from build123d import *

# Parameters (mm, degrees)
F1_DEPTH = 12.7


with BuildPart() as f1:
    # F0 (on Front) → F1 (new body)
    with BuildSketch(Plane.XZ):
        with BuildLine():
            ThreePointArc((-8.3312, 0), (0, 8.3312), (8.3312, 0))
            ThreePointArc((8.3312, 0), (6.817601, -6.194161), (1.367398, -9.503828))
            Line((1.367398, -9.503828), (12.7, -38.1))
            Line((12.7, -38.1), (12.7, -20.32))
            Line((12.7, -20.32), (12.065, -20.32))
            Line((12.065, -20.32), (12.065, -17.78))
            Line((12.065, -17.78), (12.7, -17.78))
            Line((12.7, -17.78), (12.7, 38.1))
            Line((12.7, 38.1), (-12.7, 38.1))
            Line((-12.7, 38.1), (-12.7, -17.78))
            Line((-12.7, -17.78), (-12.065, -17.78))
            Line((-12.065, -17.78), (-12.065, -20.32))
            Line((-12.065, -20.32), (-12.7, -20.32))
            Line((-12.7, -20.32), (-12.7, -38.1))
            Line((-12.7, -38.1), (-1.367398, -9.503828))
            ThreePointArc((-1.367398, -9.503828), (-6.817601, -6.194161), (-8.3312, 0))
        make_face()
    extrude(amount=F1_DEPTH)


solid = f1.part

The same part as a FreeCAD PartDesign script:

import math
import FreeCAD as App
import Part
import Sketcher
from FreeCAD import Vector
Q = App.Units.Quantity

doc = App.newDocument("Part")
body = doc.addObject("PartDesign::Body", "Body")

# Sketch on XZ plane
sketch1 = body.newObject("Sketcher::SketchObject", "Sketch")
sketch1.AttachmentSupport = (doc.getObject("XZ_Plane"), [""])
sketch1.MapMode = "FlatFace"
sketch1.addGeometry([
    Part.ArcOfCircle(Part.Circle(Vector(0, 0, 0), Vector(0, 0, 1), 8.3), math.radians(0), math.radians(180)),  # 0
    Part.ArcOfCircle(Part.Circle(Vector(0.1, -1.3, 0), Vector(0, 0, 1), 8.3), math.radians(-81), math.radians(9)),  # 1
    Part.LineSegment(Vector(1.4, -9.5, 0), Vector(12.7, -38.1, 0)),  # 2
    Part.LineSegment(Vector(12.7, -38.1, 0), Vector(12.7, -20.3, 0)),  # 3
    Part.LineSegment(Vector(12.7, -20.3, 0), Vector(12.1, -20.3, 0)),  # 4
    Part.LineSegment(Vector(12.1, -20.3, 0), Vector(12.1, -17.8, 0)),  # 5
    Part.LineSegment(Vector(12.1, -17.8, 0), Vector(12.7, -17.8, 0)),  # 6
    Part.LineSegment(Vector(12.7, -17.8, 0), Vector(12.7, 38.1, 0)),  # 7
    Part.LineSegment(Vector(12.7, 38.1, 0), Vector(-12.7, 38.1, 0)),  # 8
    Part.LineSegment(Vector(-12.7, 38.1, 0), Vector(-12.7, -17.8, 0)),  # 9
    Part.LineSegment(Vector(-12.7, -17.8, 0), Vector(-12.1, -17.8, 0)),  # 10
    Part.LineSegment(Vector(-12.1, -17.8, 0), Vector(-12.1, -20.3, 0)),  # 11
    Part.LineSegment(Vector(-12.1, -20.3, 0), Vector(-12.7, -20.3, 0)),  # 12
    Part.LineSegment(Vector(-12.7, -20.3, 0), Vector(-12.7, -38.1, 0)),  # 13
    Part.LineSegment(Vector(-12.7, -38.1, 0), Vector(-1.4, -9.5, 0)),  # 14
    Part.ArcOfCircle(Part.Circle(Vector(-0.1, -1.3, 0), Vector(0, 0, 1), 8.3), math.radians(171), math.radians(261)),  # 15
], False)
sketch1.addConstraint([
    Sketcher.Constraint("Coincident", 0, 1, 1, 2),
    Sketcher.Constraint("Coincident", 1, 1, 2, 1),
    Sketcher.Constraint("Coincident", 2, 2, 3, 1),
    Sketcher.Constraint("Coincident", 3, 2, 4, 1),
    Sketcher.Constraint("Coincident", 4, 2, 5, 1),
    Sketcher.Constraint("Coincident", 5, 2, 6, 1),
    Sketcher.Constraint("Coincident", 6, 2, 7, 1),
    Sketcher.Constraint("Coincident", 7, 2, 8, 1),
    Sketcher.Constraint("Coincident", 8, 2, 9, 1),
    Sketcher.Constraint("Coincident", 9, 2, 10, 1),
    Sketcher.Constraint("Coincident", 10, 2, 11, 1),
    Sketcher.Constraint("Coincident", 11, 2, 12, 1),
    Sketcher.Constraint("Coincident", 12, 2, 13, 1),
    Sketcher.Constraint("Coincident", 13, 2, 14, 1),
    Sketcher.Constraint("Coincident", 14, 2, 15, 2),
    Sketcher.Constraint("Coincident", 15, 1, 0, 2),
    Sketcher.Constraint("Vertical", 3),
    Sketcher.Constraint("Horizontal", 4),
    Sketcher.Constraint("Vertical", 5),
    Sketcher.Constraint("Horizontal", 6),
    Sketcher.Constraint("Vertical", 7),
    Sketcher.Constraint("Horizontal", 8),
    Sketcher.Constraint("Vertical", 9),
    Sketcher.Constraint("Horizontal", 10),
    Sketcher.Constraint("Vertical", 11),
    Sketcher.Constraint("Horizontal", 12),
    Sketcher.Constraint("Vertical", 13),
    Sketcher.Constraint("Coincident", 0, 3, -1, 1),
    Sketcher.Constraint("Equal", 0, 1),
    Sketcher.Constraint("Equal", 1, 15),
    Sketcher.Constraint("Symmetric", 2, 2, 8, 2, -1, 1),
    Sketcher.Constraint("Symmetric", 7, 2, 13, 2, -1, 1),
    Sketcher.Constraint("Symmetric", 1, 3, 15, 3, -2),
    Sketcher.Constraint("Symmetric", 6, 2, 9, 2, -2),
    Sketcher.Constraint("Symmetric", 4, 2, 11, 2, -2),
    Sketcher.Constraint("PointOnObject", 0, 1, -1),
    Sketcher.Constraint("Horizontal", 1, 1, 14, 2),
    Sketcher.Constraint("DistanceX", 8, 2, 8, 1, Q("1 in")),
    Sketcher.Constraint("DistanceY", 3, 1, 3, 2, Q("0.7 in")),
    Sketcher.Constraint("DistanceY", 5, 1, 5, 2, Q("0.1 in")),
    Sketcher.Constraint("DistanceY", 7, 1, 7, 2, Q("2.2 in")),
    Sketcher.Constraint("Radius", 0, Q("0.328 in")),
    Sketcher.Constraint("DistanceX", 4, 2, 4, 1, Q("0.025 in")),
    Sketcher.Constraint("DistanceY", 1, 3, -1, 1, Q("0.05 in")),
    Sketcher.Constraint("DistanceX", -1, 1, 1, 1, Q("1.367398 mm")),
])
pad1 = body.newObject("PartDesign::Pad", "Pad")
pad1.Profile = sketch1
pad1.Length = Q("0.5 in")

doc.recompute()
